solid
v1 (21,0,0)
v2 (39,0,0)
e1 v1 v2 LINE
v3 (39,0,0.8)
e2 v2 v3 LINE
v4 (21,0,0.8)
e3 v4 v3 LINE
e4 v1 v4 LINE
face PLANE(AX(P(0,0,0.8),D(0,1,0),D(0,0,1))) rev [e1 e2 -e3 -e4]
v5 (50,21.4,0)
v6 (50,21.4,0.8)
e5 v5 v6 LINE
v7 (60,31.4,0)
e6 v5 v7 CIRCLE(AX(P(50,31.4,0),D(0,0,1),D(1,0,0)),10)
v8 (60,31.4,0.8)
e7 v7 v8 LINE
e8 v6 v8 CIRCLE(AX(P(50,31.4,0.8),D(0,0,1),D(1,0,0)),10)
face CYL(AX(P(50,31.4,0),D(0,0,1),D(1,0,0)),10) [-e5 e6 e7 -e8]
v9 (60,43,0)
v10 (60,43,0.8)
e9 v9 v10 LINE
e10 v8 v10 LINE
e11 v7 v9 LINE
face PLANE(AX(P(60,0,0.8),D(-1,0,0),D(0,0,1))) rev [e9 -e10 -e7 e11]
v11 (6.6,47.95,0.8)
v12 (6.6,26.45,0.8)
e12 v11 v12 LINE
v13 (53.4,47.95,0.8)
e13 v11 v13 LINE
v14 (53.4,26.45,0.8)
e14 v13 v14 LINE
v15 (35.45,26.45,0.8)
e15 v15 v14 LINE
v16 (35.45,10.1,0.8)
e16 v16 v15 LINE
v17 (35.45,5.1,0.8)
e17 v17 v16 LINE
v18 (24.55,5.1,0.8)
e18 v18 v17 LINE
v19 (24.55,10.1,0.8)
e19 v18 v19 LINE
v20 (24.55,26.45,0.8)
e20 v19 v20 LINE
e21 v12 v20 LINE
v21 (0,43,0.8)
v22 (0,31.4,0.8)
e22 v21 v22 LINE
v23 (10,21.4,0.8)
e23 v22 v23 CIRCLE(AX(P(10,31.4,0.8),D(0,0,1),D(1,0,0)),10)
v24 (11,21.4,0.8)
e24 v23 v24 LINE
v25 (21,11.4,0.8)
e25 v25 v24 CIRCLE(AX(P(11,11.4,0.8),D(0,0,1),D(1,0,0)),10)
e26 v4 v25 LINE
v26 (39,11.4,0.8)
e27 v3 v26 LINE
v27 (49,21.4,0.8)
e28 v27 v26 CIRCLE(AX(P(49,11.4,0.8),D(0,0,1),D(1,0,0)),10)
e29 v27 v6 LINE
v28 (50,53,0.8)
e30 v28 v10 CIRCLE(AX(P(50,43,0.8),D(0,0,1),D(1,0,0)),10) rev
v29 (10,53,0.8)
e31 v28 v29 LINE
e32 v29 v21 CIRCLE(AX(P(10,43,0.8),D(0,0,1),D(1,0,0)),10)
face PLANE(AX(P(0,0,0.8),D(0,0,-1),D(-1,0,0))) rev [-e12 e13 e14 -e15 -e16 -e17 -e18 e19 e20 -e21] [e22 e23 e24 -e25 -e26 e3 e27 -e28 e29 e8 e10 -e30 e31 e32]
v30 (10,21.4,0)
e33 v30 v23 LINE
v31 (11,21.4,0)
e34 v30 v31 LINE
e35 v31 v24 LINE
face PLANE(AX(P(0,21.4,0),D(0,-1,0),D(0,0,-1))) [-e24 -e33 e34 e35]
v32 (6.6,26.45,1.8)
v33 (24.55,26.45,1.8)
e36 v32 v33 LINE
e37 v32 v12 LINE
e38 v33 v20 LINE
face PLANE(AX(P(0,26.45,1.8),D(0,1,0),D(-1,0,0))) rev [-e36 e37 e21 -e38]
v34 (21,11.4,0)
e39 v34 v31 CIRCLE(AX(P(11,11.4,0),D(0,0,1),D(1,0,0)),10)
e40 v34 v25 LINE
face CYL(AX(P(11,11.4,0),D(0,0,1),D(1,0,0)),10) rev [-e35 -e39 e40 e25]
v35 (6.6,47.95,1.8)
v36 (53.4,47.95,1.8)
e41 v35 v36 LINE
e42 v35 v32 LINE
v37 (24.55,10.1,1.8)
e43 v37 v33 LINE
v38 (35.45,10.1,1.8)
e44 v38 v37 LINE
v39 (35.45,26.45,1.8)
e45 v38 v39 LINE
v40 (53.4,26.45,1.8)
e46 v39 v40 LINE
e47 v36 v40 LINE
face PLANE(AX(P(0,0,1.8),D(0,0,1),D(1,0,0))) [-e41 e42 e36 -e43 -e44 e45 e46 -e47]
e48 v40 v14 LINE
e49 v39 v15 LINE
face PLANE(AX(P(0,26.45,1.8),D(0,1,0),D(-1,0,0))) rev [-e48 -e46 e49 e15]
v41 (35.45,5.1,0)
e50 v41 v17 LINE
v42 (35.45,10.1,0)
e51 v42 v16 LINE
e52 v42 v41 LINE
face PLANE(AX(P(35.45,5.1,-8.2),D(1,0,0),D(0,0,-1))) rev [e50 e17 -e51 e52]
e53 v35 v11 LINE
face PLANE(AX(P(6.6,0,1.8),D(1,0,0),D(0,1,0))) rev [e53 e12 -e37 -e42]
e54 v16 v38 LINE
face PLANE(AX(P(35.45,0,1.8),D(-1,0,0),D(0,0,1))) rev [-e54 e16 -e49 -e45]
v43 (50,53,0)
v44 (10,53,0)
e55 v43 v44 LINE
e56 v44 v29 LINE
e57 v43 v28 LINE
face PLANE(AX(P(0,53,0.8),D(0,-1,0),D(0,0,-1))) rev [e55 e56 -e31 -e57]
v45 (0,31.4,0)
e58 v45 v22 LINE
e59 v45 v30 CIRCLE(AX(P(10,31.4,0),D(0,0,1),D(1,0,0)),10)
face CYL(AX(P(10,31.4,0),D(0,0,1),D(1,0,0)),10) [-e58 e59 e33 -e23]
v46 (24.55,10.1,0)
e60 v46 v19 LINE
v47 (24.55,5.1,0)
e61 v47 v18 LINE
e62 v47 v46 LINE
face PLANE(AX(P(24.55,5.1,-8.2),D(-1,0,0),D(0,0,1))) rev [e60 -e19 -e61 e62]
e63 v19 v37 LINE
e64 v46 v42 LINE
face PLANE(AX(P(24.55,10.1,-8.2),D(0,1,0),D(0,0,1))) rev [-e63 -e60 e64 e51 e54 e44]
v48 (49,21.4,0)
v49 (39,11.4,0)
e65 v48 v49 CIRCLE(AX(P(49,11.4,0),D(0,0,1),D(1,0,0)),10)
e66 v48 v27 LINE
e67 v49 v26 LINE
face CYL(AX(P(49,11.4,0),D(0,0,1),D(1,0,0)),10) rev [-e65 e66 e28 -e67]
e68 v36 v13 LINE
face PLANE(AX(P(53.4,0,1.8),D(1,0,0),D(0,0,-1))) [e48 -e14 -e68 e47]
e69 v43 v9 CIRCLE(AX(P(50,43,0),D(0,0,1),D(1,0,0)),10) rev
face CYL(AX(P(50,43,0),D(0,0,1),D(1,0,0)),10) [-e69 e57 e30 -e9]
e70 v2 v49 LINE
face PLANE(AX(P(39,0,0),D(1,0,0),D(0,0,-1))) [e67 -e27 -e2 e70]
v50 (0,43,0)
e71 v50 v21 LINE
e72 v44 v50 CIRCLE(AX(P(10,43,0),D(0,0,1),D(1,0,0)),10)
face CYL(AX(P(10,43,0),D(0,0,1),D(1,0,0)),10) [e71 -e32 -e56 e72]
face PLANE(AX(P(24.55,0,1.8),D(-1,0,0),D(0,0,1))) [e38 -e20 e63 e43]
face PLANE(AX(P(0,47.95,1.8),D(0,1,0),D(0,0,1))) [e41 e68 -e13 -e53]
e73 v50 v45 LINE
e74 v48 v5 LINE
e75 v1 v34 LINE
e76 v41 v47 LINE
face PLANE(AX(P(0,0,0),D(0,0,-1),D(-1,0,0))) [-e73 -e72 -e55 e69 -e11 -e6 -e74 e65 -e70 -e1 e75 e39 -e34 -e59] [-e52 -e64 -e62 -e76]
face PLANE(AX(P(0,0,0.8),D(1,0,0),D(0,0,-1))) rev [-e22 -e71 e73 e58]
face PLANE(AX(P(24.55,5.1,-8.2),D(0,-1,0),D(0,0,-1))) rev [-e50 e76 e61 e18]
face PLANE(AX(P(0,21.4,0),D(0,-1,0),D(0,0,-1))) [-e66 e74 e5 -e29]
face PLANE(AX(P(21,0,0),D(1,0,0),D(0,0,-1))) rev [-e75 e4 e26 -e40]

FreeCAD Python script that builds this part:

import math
import FreeCAD as App
import Part
import Sketcher

V = App.Vector
Q = App.Units.Quantity

doc = App.newDocument("Part")
params = doc.addObject("Spreadsheet::Sheet", "Params")
for row, (alias, value) in enumerate([
    ("sketch1_width", "60 mm"),
    ("sketch1_height", "53 mm"),
    ("pad1_length", "0.8 mm"),
    ("sketch2_radius", "10 mm"),
    ("sketch2_width", "21 mm"),
    ("sketch2_height", "31.4 mm"),
    ("pocket1_length", "0.8 mm"),
    ("sketch3_width", "10.9 mm"),
    ("sketch3_width2", "46.8 mm"),
    ("sketch3_height", "21.5 mm"),
    ("sketch3_height2", "21.35 mm"),
    ("pad2_length", "1 mm"),
    ("sketch4_height", "5 mm"),
    ("sketch4_width", "10.9 mm"),
    ("pocket2_length", "10 mm"),
], start=1):
    params.set(f"A{row}", alias)
    params.set(f"B{row}", "=" + value)
    params.setAlias(f"B{row}", alias)

body = doc.addObject("PartDesign::Body", "Body")

sketch1 = body.newObject("Sketcher::SketchObject", "Sketch")
sketch1.AttachmentSupport = (doc.getObject("XY_Plane"), [""])
sketch1.MapMode = "FlatFace"
sketch1.addGeometry(Part.LineSegment(V(0, 53, 0), V(0, 0, 0)), False)
sketch1.addGeometry(Part.LineSegment(V(0, 0, 0), V(60, 0, 0)), False)
sketch1.addGeometry(Part.LineSegment(V(60, 0, 0), V(60, 53, 0)), False)
sketch1.addGeometry(Part.LineSegment(V(60, 53, 0), V(0, 53, 0)), False)
sketch1.addConstraint(Sketcher.Constraint("Coincident", 0, 2, 1, 1))
sketch1.addConstraint(Sketcher.Constraint("Coincident", 1, 2, 2, 1))
sketch1.addConstraint(Sketcher.Constraint("Coincident", 2, 2, 3, 1))
sketch1.addConstraint(Sketcher.Constraint("Coincident", 3, 2, 0, 1))
sketch1.addConstraint(Sketcher.Constraint("Vertical", 0))
sketch1.addConstraint(Sketcher.Constraint("Horizontal", 1))
sketch1.addConstraint(Sketcher.Constraint("Vertical", 2))
sketch1.addConstraint(Sketcher.Constraint("Horizontal", 3))
sketch1.addConstraint(Sketcher.Constraint("Coincident", 0, 2, -1, 1))
sketch1.addConstraint(Sketcher.Constraint("DistanceX", 1, 1, 1, 2, Q("60 mm")))
sketch1.addConstraint(Sketcher.Constraint("DistanceY", 0, 2, 0, 1, Q("53 mm")))
sketch1.setExpression("Constraints[9]", "Params.sketch1_width")
sketch1.setExpression("Constraints[10]", "Params.sketch1_height")
pad1 = body.newObject("PartDesign::Pad", "Pad")
pad1.Profile = sketch1
pad1.setExpression("Length", "Params.pad1_length")

sketch2 = body.newObject("Sketcher::SketchObject", "Sketch001")
sketch2.AttachmentSupport = (doc.getObject("XY_Plane"), [""])
sketch2.MapMode = "FlatFace"
sketch2.AttachmentOffset = App.Placement(V(0, 0, 0.8), App.Rotation())
sketch2.addGeometry(Part.ArcOfCircle(Part.Circle(V(10, 43, 0), V(0, 0, 1), 10), math.radians(90), math.radians(180)), False)
sketch2.addGeometry(Part.LineSegment(V(10, 53, 0), V(0, 53, 0)), False)
sketch2.addGeometry(Part.LineSegment(V(0, 53, 0), V(0, 43, 0)), False)
sketch2.addGeometry(Part.ArcOfCircle(Part.Circle(V(10, 31.4, 0), V(0, 0, 1), 10), math.radians(180), math.radians(270)), False)
sketch2.addGeometry(Part.LineSegment(V(0, 31.4, 0), V(0, 0, 0)), False)
sketch2.addGeometry(Part.LineSegment(V(0, 0, 0), V(21, 0, 0)), False)
sketch2.addGeometry(Part.LineSegment(V(21, 0, 0), V(21, 11.4, 0)), False)
sketch2.addGeometry(Part.ArcOfCircle(Part.Circle(V(11, 11.4, 0), V(0, 0, 1), 10), math.radians(0), math.radians(90)), False)
sketch2.addGeometry(Part.LineSegment(V(11, 21.4, 0), V(10, 21.4, 0)), False)
sketch2.addGeometry(Part.LineSegment(V(60, 0, 0), V(60, 31.4, 0)), False)
sketch2.addGeometry(Part.ArcOfCircle(Part.Circle(V(50, 31.4, 0), V(0, 0, 1), 10), math.radians(-90), math.radians(0)), False)
sketch2.addGeometry(Part.LineSegment(V(50, 21.4, 0), V(49, 21.4, 0)), False)
sketch2.addGeometry(Part.ArcOfCircle(Part.Circle(V(49, 11.4, 0), V(0, 0, 1), 10), math.radians(90), math.radians(180)), False)
sketch2.addGeometry(Part.LineSegment(V(39, 11.4, 0), V(39, 0, 0)), False)
sketch2.addGeometry(Part.LineSegment(V(39, 0, 0), V(60, 0, 0)), False)
sketch2.addGeometry(Part.LineSegment(V(60, 53, 0), V(50, 53, 0)), False)
sketch2.addGeometry(Part.ArcOfCircle(Part.Circle(V(50, 43, 0), V(0, 0, 1), 10), math.radians(0), math.radians(90)), False)
sketch2.addGeometry(Part.LineSegment(V(60, 43, 0), V(60, 53, 0)), False)
sketch2.addConstraint(Sketcher.Constraint("Tangent", 0, 1, 1, 1))
sketch2.addConstraint(Sketcher.Constraint("Coincident", 1, 2, 2, 1))
sketch2.addConstraint(Sketcher.Constraint("Tangent", 2, 2, 0, 2))
sketch2.addConstraint(Sketcher.Constraint("Tangent", 3, 1, 4, 1))
sketch2.addConstraint(Sketcher.Constraint("Coincident", 4, 2, 5, 1))
sketch2.addConstraint(Sketcher.Constraint("Coincident", 5, 2, 6, 1))
sketch2.addConstraint(Sketcher.Constraint("Tangent", 6, 2, 7, 1))
sketch2.addConstraint(Sketcher.Constraint("Tangent", 7, 2, 8, 1))
sketch2.addConstraint(Sketcher.Constraint("Tangent", 8, 2, 3, 2))
sketch2.addConstraint(Sketcher.Constraint("Tangent", 9, 2, 10, 2))
sketch2.addConstraint(Sketcher.Constraint("Tangent", 10, 1, 11, 1))
sketch2.addConstraint(Sketcher.Constraint("Tangent", 11, 2, 12, 1))
sketch2.addConstraint(Sketcher.Constraint("Tangent", 12, 2, 13, 1))
sketch2.addConstraint(Sketcher.Constraint("Coincident", 13, 2, 14, 1))
sketch2.addConstraint(Sketcher.Constraint("Coincident", 14, 2, 9, 1))
sketch2.addConstraint(Sketcher.Constraint("Tangent", 15, 2, 16, 2))
sketch2.addConstraint(Sketcher.Constraint("Tangent", 16, 1, 17, 1))
sketch2.addConstraint(Sketcher.Constraint("Coincident", 17, 2, 15, 1))
sketch2.addConstraint(Sketcher.Constraint("Horizontal", 1))
sketch2.addConstraint(Sketcher.Constraint("Vertical", 2))
sketch2.addConstraint(Sketcher.Constraint("Vertical", 4))
sketch2.addConstraint(Sketcher.Constraint("Horizontal", 5))
sketch2.addConstraint(Sketcher.Constraint("Vertical", 6))
sketch2.addConstraint(Sketcher.Constraint("Horizontal", 8))
sketch2.addConstraint(Sketcher.Constraint("Vertical", 9))
sketch2.addConstraint(Sketcher.Constraint("Horizontal", 11))
sketch2.addConstraint(Sketcher.Constraint("Vertical", 13))
sketch2.addConstraint(Sketcher.Constraint("Horizontal", 14))
sketch2.addConstraint(Sketcher.Constraint("Horizontal", 15))
sketch2.addConstraint(Sketcher.Constraint("Vertical", 17))
sketch2.addConstraint(Sketcher.Constraint("Coincident", 4, 2, -1, 1))
sketch2.addConstraint(Sketcher.Constraint("Equal", 0, 3))
sketch2.addConstraint(Sketcher.Constraint("Equal", 3, 7))
sketch2.addConstraint(Sketcher.Constraint("Equal", 7, 10))
sketch2.addConstraint(Sketcher.Constraint("Equal", 10, 12))
sketch2.addConstraint(Sketcher.Constraint("Equal", 12, 16))
sketch2.addConstraint(Sketcher.Constraint("PointOnObject", 1, 2, -2))
sketch2.addConstraint(Sketcher.Constraint("PointOnObject", 13, 2, -1))
sketch2.addConstraint(Sketcher.Constraint("Horizontal", 3, 3, 10, 3))
sketch2.addConstraint(Sketcher.Constraint("Horizontal", 0, 3, 16, 3))
sketch2.addConstraint(Sketcher.Constraint("Vertical", 10, 3, 16, 3))
sketch2.addConstraint(Sketcher.Constraint("Equal", 8, 11))
sketch2.addConstraint(Sketcher.Constraint("Radius", 0, Q("10 mm")))
sketch2.addConstraint(Sketcher.Constraint("DistanceX", 5, 1, 5, 2, Q("21 mm")))
sketch2.addConstraint(Sketcher.Constraint("DistanceY", 4, 2, 4, 1, Q("31.4 mm")))
sketch2.addConstraint(Sketcher.Constraint("DistanceY", -1, 1, 0, 3, Q("43 mm")))
sketch2.addConstraint(Sketcher.Constraint("DistanceX", -1, 1, 10, 3, Q("50 mm")))
sketch2.setExpression("Constraints[42]", "Params.sketch2_radius")
sketch2.setExpression("Constraints[43]", "Params.sketch2_width")
sketch2.setExpression("Constraints[44]", "Params.sketch2_height")
pocket1 = body.newObject("PartDesign::Pocket", "Pocket")
pocket1.Profile = sketch2
pocket1.setExpression("Length", "Params.pocket1_length")

sketch3 = body.newObject("Sketcher::SketchObject", "Sketch002")
sketch3.AttachmentSupport = (doc.getObject("XY_Plane"), [""])
sketch3.MapMode = "FlatFace"
sketch3.AttachmentOffset = App.Placement(V(0, 0, 0.8), App.Rotation())
sketch3.addGeometry(Part.LineSegment(V(25, 26, 0), V(25, 5, 0)), False)
sketch3.addGeometry(Part.LineSegment(V(25, 5, 0), V(35, 5, 0)), False)
sketch3.addGeometry(Part.LineSegment(V(35, 5, 0), V(35, 26, 0)), False)
sketch3.addGeometry(Part.LineSegment(V(35, 26, 0), V(53, 26, 0)), False)
sketch3.addGeometry(Part.LineSegment(V(53, 26, 0), V(53, 48, 0)), False)
sketch3.addGeometry(Part.LineSegment(V(53, 48, 0), V(7, 48, 0)), False)
sketch3.addGeometry(Part.LineSegment(V(7, 48, 0), V(7, 26, 0)), False)
sketch3.addGeometry(Part.LineSegment(V(7, 26, 0), V(25, 26, 0)), False)
sketch3.addConstraint(Sketcher.Constraint("Coincident", 0, 2, 1, 1))
sketch3.addConstraint(Sketcher.Constraint("Coincident", 1, 2, 2, 1))
sketch3.addConstraint(Sketcher.Constraint("Coincident", 2, 2, 3, 1))
sketch3.addConstraint(Sketcher.Constraint("Coincident", 3, 2, 4, 1))
sketch3.addConstraint(Sketcher.Constraint("Coincident", 4, 2, 5, 1))
sketch3.addConstraint(Sketcher.Constraint("Coincident", 5, 2, 6, 1))
sketch3.addConstraint(Sketcher.Constraint("Coincident", 6, 2, 7, 1))
sketch3.addConstraint(Sketcher.Constraint("Coincident", 7, 2, 0, 1))
sketch3.addConstraint(Sketcher.Constraint("Vertical", 0))
sketch3.addConstraint(Sketcher.Constraint("Horizontal", 1))
sketch3.addConstraint(Sketcher.Constraint("Vertical", 2))
sketch3.addConstraint(Sketcher.Constraint("Horizontal", 3))
sketch3.addConstraint(Sketcher.Constraint("Vertical", 4))
sketch3.addConstraint(Sketcher.Constraint("Horizontal", 5))
sketch3.addConstraint(Sketcher.Constraint("Vertical", 6))
sketch3.addConstraint(Sketcher.Constraint("Horizontal", 7))
sketch3.addConstraint(Sketcher.Constraint("Horizontal", 3, 2, 6, 2))
sketch3.addConstraint(Sketcher.Constraint("Equal", 3, 7))
sketch3.addConstraint(Sketcher.Constraint("DistanceX", 1, 1, 1, 2, Q("10.9 mm")))
sketch3.addConstraint(Sketcher.Constraint("DistanceX", 5, 2, 5, 1, Q("46.8 mm")))
sketch3.addConstraint(Sketcher.Constraint("DistanceY", 4, 1, 4, 2, Q("21.5 mm")))
sketch3.addConstraint(Sketcher.Constraint("DistanceY", 0, 2, 0, 1, Q("21.35 mm")))
sketch3.addConstraint(Sketcher.Constraint("DistanceY", -1, 1, 0, 2, Q("5.1 mm")))
sketch3.addConstraint(Sketcher.Constraint("DistanceX", -1, 1, 3, 2, Q("53.4 mm")))
sketch3.setExpression("Constraints[18]", "Params.sketch3_width")
sketch3.setExpression("Constraints[19]", "Params.sketch3_width2")
sketch3.setExpression("Constraints[20]", "Params.sketch3_height")
sketch3.setExpression("Constraints[21]", "Params.sketch3_height2")
pad2 = body.newObject("PartDesign::Pad", "Pad001")
pad2.Profile = sketch3
pad2.setExpression("Length", "Params.pad2_length")

sketch4 = body.newObject("Sketcher::SketchObject", "Sketch003")
sketch4.AttachmentSupport = (doc.getObject("XY_Plane"), [""])
sketch4.MapMode = "FlatFace"
sketch4.AttachmentOffset = App.Placement(V(0, 0, 1.8), App.Rotation())
sketch4.addGeometry(Part.LineSegment(V(25, 10, 0), V(25, 5, 0)), False)
sketch4.addGeometry(Part.LineSegment(V(25, 5, 0), V(35, 5, 0)), False)
sketch4.addGeometry(Part.LineSegment(V(35, 5, 0), V(35, 10, 0)), False)
sketch4.addGeometry(Part.LineSegment(V(35, 10, 0), V(25, 10, 0)), False)
sketch4.addConstraint(Sketcher.Constraint("Coincident", 0, 2, 1, 1))
sketch4.addConstraint(Sketcher.Constraint("Coincident", 1, 2, 2, 1))
sketch4.addConstraint(Sketcher.Constraint("Coincident", 2, 2, 3, 1))
sketch4.addConstraint(Sketcher.Constraint("Coincident", 3, 2, 0, 1))
sketch4.addConstraint(Sketcher.Constraint("Vertical", 0))
sketch4.addConstraint(Sketcher.Constraint("Horizontal", 1))
sketch4.addConstraint(Sketcher.Constraint("Vertical", 2))
sketch4.addConstraint(Sketcher.Constraint("Horizontal", 3))
sketch4.addConstraint(Sketcher.Constraint("DistanceY", 0, 2, 0, 1, Q("5 mm")))
sketch4.addConstraint(Sketcher.Constraint("DistanceX", 1, 1, 1, 2, Q("10.9 mm")))
sketch4.addConstraint(Sketcher.Constraint("DistanceY", -1, 1, 0, 2, Q("5.1 mm")))
sketch4.addConstraint(Sketcher.Constraint("DistanceX", -1, 1, 0, 2, Q("24.55 mm")))
sketch4.setExpression("Constraints[8]", "Params.sketch4_height")
sketch4.setExpression("Constraints[9]", "Params.sketch4_width")
pocket2 = body.newObject("PartDesign::Pocket", "Pocket001")
pocket2.Profile = sketch4
pocket2.setExpression("Length", "Params.pocket2_length")

doc.recompute()
